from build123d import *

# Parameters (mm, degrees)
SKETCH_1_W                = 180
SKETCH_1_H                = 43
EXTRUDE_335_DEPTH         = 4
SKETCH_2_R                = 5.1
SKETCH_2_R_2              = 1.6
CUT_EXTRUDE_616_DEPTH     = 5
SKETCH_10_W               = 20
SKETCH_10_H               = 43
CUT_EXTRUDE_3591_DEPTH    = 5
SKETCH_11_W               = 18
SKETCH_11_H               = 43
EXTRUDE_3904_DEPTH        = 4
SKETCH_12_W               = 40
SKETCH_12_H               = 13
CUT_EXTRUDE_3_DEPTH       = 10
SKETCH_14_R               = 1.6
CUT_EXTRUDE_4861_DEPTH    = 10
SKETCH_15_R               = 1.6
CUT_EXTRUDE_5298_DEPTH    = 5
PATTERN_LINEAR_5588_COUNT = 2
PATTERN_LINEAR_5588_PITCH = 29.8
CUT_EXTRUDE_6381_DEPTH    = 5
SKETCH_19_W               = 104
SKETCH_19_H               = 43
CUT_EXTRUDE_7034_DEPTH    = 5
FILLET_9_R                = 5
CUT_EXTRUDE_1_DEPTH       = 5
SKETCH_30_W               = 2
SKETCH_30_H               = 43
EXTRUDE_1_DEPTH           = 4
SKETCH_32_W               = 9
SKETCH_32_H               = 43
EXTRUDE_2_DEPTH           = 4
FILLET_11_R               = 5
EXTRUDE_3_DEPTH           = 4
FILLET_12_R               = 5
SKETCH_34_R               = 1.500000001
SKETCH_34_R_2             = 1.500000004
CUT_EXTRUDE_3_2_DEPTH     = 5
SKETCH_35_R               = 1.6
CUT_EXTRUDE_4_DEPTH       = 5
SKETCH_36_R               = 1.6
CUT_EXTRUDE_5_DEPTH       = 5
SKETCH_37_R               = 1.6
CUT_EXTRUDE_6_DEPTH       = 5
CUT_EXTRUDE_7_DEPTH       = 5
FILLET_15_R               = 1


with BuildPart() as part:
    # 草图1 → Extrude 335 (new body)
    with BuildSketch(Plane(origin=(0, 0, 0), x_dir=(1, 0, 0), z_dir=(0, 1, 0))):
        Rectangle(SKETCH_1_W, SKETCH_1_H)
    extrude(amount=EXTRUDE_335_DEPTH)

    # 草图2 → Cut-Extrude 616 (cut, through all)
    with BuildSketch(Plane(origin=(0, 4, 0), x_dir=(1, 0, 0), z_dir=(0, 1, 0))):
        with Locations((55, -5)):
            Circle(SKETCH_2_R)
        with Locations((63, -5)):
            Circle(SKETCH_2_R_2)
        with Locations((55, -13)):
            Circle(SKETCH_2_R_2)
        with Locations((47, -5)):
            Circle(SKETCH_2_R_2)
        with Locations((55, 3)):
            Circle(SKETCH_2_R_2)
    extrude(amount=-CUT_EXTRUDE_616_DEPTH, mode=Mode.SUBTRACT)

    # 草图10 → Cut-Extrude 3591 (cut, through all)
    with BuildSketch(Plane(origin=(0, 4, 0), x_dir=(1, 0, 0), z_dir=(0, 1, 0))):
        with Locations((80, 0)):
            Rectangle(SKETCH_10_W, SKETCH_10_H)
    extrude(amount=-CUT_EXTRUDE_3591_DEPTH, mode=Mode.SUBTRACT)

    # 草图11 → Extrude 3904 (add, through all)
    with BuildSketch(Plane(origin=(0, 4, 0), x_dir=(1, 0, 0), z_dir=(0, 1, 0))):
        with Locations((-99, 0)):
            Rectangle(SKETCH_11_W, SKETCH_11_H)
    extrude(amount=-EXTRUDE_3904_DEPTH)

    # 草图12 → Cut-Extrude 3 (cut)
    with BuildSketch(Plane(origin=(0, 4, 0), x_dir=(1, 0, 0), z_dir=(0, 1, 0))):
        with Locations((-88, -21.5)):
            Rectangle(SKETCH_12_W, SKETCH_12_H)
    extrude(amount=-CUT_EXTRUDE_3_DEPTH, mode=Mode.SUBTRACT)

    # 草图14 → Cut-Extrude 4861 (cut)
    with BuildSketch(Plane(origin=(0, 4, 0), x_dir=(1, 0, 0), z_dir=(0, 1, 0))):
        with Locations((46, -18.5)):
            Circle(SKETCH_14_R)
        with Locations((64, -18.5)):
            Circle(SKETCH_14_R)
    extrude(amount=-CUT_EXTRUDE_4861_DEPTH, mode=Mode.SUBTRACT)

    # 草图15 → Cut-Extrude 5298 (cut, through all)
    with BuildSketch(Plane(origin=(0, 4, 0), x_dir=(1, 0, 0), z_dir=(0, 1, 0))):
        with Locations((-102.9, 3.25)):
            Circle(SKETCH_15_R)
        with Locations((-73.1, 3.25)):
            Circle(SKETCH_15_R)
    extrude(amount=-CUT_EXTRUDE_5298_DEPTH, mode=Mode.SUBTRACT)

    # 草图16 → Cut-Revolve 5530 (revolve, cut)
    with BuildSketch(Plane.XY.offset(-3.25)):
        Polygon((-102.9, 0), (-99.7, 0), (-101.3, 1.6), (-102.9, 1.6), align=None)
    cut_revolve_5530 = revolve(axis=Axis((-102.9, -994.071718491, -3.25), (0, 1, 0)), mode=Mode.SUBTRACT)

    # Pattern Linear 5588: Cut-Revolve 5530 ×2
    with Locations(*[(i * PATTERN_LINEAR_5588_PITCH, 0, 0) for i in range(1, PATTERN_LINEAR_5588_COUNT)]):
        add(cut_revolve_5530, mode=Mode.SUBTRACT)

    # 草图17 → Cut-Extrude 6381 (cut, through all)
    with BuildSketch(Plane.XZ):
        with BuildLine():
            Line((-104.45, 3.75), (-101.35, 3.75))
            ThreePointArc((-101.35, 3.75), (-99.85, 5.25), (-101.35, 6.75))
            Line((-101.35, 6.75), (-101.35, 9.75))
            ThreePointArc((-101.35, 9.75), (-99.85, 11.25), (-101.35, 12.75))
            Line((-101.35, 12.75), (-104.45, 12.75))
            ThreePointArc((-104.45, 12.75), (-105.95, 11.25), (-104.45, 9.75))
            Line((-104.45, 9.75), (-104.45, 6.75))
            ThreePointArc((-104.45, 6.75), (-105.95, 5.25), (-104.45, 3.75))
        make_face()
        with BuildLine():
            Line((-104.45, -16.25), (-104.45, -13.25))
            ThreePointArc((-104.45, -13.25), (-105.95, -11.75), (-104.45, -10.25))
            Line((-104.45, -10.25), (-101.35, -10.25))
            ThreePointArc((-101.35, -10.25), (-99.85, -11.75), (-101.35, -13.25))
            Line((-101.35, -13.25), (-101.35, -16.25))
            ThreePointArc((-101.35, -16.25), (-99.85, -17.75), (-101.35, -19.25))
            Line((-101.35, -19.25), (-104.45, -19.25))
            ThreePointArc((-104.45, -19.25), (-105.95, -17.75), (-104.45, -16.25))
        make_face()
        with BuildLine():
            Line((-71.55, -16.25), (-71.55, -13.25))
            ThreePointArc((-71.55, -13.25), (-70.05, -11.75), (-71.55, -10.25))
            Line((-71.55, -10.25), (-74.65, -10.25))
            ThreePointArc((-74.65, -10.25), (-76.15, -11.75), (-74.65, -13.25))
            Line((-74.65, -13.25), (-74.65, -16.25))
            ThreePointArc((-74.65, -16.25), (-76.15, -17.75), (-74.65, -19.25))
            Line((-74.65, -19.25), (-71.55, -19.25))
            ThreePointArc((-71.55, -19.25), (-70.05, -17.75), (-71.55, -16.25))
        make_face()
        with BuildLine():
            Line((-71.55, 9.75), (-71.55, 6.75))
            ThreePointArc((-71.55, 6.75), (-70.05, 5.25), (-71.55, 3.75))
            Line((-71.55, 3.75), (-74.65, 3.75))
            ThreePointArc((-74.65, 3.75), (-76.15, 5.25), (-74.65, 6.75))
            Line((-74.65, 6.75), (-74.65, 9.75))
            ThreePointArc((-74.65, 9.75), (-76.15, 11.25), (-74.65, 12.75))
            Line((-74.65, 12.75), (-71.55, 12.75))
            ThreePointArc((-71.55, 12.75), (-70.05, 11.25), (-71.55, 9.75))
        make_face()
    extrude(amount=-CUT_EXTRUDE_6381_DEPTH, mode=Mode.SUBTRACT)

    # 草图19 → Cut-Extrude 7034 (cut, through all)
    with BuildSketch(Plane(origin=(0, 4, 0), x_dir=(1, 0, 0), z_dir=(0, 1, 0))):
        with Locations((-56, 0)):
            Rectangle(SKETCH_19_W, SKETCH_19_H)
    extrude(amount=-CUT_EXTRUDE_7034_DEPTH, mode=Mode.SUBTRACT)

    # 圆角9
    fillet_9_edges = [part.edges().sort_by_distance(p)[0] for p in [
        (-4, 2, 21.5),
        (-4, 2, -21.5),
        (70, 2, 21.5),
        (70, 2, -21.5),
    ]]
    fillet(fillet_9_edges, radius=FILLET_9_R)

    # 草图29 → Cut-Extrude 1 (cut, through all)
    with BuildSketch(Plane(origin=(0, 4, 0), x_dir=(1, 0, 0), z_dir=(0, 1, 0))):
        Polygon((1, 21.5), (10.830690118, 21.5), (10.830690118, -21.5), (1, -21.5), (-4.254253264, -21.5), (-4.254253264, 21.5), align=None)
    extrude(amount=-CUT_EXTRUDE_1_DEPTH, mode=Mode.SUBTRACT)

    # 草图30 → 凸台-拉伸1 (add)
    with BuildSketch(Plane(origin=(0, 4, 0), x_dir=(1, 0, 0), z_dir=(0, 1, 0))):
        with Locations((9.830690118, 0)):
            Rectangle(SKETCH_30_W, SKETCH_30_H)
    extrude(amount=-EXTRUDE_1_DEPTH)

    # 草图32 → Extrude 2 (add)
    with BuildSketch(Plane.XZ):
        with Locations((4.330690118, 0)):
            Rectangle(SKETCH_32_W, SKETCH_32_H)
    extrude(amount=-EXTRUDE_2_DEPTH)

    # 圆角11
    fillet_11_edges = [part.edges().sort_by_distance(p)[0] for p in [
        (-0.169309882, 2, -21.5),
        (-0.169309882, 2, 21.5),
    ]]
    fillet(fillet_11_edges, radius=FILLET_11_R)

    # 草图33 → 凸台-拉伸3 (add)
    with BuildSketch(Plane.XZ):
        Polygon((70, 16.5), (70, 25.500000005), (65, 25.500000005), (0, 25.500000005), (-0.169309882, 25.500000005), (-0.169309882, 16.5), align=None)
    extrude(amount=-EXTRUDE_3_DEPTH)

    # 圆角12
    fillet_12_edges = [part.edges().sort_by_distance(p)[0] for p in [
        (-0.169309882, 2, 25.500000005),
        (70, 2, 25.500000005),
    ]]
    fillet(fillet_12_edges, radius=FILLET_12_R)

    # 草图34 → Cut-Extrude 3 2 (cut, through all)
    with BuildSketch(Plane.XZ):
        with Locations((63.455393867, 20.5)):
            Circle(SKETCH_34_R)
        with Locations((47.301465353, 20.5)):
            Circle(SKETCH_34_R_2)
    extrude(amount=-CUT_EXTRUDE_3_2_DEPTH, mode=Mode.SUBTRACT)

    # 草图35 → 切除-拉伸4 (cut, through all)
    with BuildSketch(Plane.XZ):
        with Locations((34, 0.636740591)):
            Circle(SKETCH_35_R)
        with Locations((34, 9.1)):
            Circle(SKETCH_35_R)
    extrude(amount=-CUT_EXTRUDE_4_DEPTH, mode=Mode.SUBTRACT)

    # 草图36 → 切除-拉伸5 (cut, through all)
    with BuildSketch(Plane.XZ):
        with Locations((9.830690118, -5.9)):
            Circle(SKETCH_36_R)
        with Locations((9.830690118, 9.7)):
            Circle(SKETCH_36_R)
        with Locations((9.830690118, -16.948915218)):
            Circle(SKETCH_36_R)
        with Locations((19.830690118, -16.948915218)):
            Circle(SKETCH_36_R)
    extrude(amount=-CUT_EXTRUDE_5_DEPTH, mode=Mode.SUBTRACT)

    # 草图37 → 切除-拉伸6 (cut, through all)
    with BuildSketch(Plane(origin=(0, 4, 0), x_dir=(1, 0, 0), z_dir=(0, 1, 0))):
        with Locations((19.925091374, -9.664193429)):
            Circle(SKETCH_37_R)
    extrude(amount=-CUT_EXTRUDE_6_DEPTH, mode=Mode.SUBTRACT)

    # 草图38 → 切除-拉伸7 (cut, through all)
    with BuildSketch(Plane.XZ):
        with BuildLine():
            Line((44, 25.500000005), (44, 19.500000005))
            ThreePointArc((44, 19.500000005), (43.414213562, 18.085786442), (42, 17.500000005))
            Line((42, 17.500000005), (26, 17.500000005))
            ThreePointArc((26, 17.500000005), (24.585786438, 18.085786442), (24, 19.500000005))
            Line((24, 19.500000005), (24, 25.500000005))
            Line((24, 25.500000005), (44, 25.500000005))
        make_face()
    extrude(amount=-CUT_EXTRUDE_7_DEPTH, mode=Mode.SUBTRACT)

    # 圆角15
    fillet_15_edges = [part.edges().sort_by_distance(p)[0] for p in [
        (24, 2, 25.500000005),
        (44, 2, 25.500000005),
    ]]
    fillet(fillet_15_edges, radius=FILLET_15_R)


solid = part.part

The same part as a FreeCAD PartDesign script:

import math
import FreeCAD as App
import Part
import Sketcher
from FreeCAD import Vector
Q = App.Units.Quantity


def edges_at(feature, points):
    """Names of the edges that pass closest to the given points."""
    edges = feature.Shape.Edges
    near = lambda p: min(range(len(edges)), key=lambda i: edges[i].distToShape(Part.Vertex(*p))[0])
    return sorted({f"Edge{near(p) + 1}" for p in points})


def add_polygon(sketch, points):
    """Adds a closed chain of lines whose ends are joined by coincident constraints."""
    first, n = sketch.GeometryCount, len(points)
    for a, b in zip(points, points[1:] + points[:1]):
        sketch.addGeometry(Part.LineSegment(App.Vector(*a, 0), App.Vector(*b, 0)), False)
    for i in range(n):
        sketch.addConstraint(Sketcher.Constraint("Coincident", first + i, 2, first + (i + 1) % n, 1))

doc = App.newDocument("Part")
body = doc.addObject("PartDesign::Body", "Body")

# Sketch on XZ plane
sketch1 = doc.addObject("Sketcher::SketchObject", "Sketch")
body.addObject(sketch1)
sketch1.AttachmentSupport = (doc.XZ_Plane, [""])
sketch1.MapMode = "FlatFace"
add_polygon(sketch1, [(-90, -22), (-90, 22), (90, 22), (90, -22)])  # lines 0-3
sketch1.addConstraint([
    Sketcher.Constraint("Vertical", 0),
    Sketcher.Constraint("Horizontal", 1),
    Sketcher.Constraint("Vertical", 2),
    Sketcher.Constraint("Horizontal", 3),
    Sketcher.Constraint("Symmetric", 0, 2, 2, 2, -1, 1),
    Sketcher.Constraint("DistanceX", 1, 1, 1, 2, Q("180 mm")),
    Sketcher.Constraint("DistanceY", 0, 1, 0, 2, Q("43 mm")),
])
pad1 = doc.addObject("PartDesign::Pad", "Pad")
body.addObject(pad1)
pad1.Profile = sketch1
pad1.Length = 4
pad1.Reversed = True

# Sketch on XZ plane
sketch2 = doc.addObject("Sketcher::SketchObject", "Sketch001")
body.addObject(sketch2)
sketch2.AttachmentSupport = (doc.XZ_Plane, [""])
sketch2.MapMode = "FlatFace"
sketch2.AttachmentOffset = App.Placement(Vector(0, 0, -4), App.Rotation())
sketch2.addGeometry([
    Part.Circle(Vector(55, 5, 0), Vector(0, 0, 1), 5.1),  # 0
    Part.Circle(Vector(63, 5, 0), Vector(0, 0, 1), 1.6),  # 1
    Part.Circle(Vector(55, 13, 0), Vector(0, 0, 1), 1.6),  # 2
    Part.Circle(Vector(47, 5, 0), Vector(0, 0, 1), 1.6),  # 3
    Part.Circle(Vector(55, -3, 0), Vector(0, 0, 1), 1.6),  # 4
], False)
sketch2.addConstraint([
    Sketcher.Constraint("Equal", 1, 2),
    Sketcher.Constraint("Equal", 2, 3),
    Sketcher.Constraint("Equal", 3, 4),
    Sketcher.Constraint("Horizontal", 0, 3, 1, 3),
    Sketcher.Constraint("Horizontal", 1, 3, 3, 3),
    Sketcher.Constraint("Vertical", 0, 3, 2, 3),
    Sketcher.Constraint("Vertical", 2, 3, 4, 3),
    Sketcher.Constraint("Diameter", 0, Q("10.2 mm")),
    Sketcher.Constraint("Diameter", 1, Q("3.2 mm")),
    Sketcher.Constraint("DistanceX", -1, 1, 0, 3, Q("55 mm")),
    Sketcher.Constraint("DistanceY", -1, 1, 0, 3, Q("5 mm")),
    Sketcher.Constraint("DistanceX", -1, 1, 1, 3, Q("63 mm")),
    Sketcher.Constraint("DistanceY", -1, 1, 2, 3, Q("13 mm")),
    Sketcher.Constraint("DistanceX", -1, 1, 3, 3, Q("47 mm")),
    Sketcher.Constraint("DistanceY", 4, 3, -1, 1, Q("3 mm")),
])
pocket1 = doc.addObject("PartDesign::Pocket", "Pocket")
body.addObject(pocket1)
pocket1.Profile = sketch2
pocket1.Type = "ThroughAll"
pocket1.Reversed = True

# Sketch on XZ plane
sketch3 = doc.addObject("Sketcher::SketchObject", "Sketch002")
body.addObject(sketch3)
sketch3.AttachmentSupport = (doc.XZ_Plane, [""])
sketch3.MapMode = "FlatFace"
sketch3.AttachmentOffset = App.Placement(Vector(0, 0, -4), App.Rotation())
add_polygon(sketch3, [(70, -22), (70, 22), (90, 22), (90, -22)])  # lines 0-3
sketch3.addConstraint([
    Sketcher.Constraint("Vertical", 0),
    Sketcher.Constraint("Horizontal", 1),
    Sketcher.Constraint("Vertical", 2),
    Sketcher.Constraint("Horizontal", 3),
    Sketcher.Constraint("DistanceX", 1, 1, 1, 2, Q("20 mm")),
    Sketcher.Constraint("DistanceY", 0, 1, 0, 2, Q("43 mm")),
    Sketcher.Constraint("DistanceX", -1, 1, 0, 2, Q("70 mm")),
    Sketcher.Constraint("DistanceY", -1, 1, 0, 2, Q("21.5 mm")),
])
pocket2 = doc.addObject("PartDesign::Pocket", "Pocket001")
body.addObject(pocket2)
pocket2.Profile = sketch3
pocket2.Type = "ThroughAll"
pocket2.Reversed = True

# Sketch on XZ plane
sketch4 = doc.addObject("Sketcher::SketchObject", "Sketch003")
body.addObject(sketch4)
sketch4.AttachmentSupport = (doc.XZ_Plane, [""])
sketch4.MapMode = "FlatFace"
sketch4.AttachmentOffset = App.Placement(Vector(0, 0, -4), App.Rotation())
add_polygon(sketch4, [(-108, -22), (-108, 22), (-90, 22), (-90, -22)])  # lines 0-3
sketch4.addConstraint([
    Sketcher.Constraint("Vertical", 0),
    Sketcher.Constraint("Horizontal", 1),
    Sketcher.Constraint("Vertical", 2),
    Sketcher.Constraint("Horizontal", 3),
    Sketcher.Constraint("DistanceX", 1, 1, 1, 2, Q("18 mm")),
    Sketcher.Constraint("DistanceY", 0, 1, 0, 2, Q("43 mm")),
    Sketcher.Constraint("DistanceX", 0, 2, -1, 1, Q("108 mm")),
    Sketcher.Constraint("DistanceY", -1, 1, 0, 2, Q("21.5 mm")),
])
pad2 = doc.addObject("PartDesign::Pad", "Pad001")
body.addObject(pad2)
pad2.Profile = sketch4
pad2.Length = 4

# Sketch on XZ plane
sketch5 = doc.addObject("Sketcher::SketchObject", "Sketch004")
body.addObject(sketch5)
sketch5.AttachmentSupport = (doc.XZ_Plane, [""])
sketch5.MapMode = "FlatFace"
sketch5.AttachmentOffset = App.Placement(Vector(0, 0, -4), App.Rotation())
add_polygon(sketch5, [(-108, 15), (-108, 28), (-68, 28), (-68, 15)])  # lines 0-3
sketch5.addConstraint([
    Sketcher.Constraint("Vertical", 0),
    Sketcher.Constraint("Horizontal", 1),
    Sketcher.Constraint("Vertical", 2),
    Sketcher.Constraint("Horizontal", 3),
    Sketcher.Constraint("DistanceX", 1, 1, 1, 2, Q("40 mm")),
    Sketcher.Constraint("DistanceY", 0, 1, 0, 2, Q("13 mm")),
    Sketcher.Constraint("DistanceX", 0, 2, -1, 1, Q("108 mm")),
    Sketcher.Constraint("DistanceY", -1, 1, 0, 2, Q("28 mm")),
])
pocket3 = doc.addObject("PartDesign::Pocket", "Pocket002")
body.addObject(pocket3)
pocket3.Profile = sketch5
pocket3.Length = 10
pocket3.Reversed = True

# Sketch on XZ plane
sketch6 = doc.addObject("Sketcher::SketchObject", "Sketch005")
body.addObject(sketch6)
sketch6.AttachmentSupport = (doc.XZ_Plane, [""])
sketch6.MapMode = "FlatFace"
sketch6.AttachmentOffset = App.Placement(Vector(0, 0, -4), App.Rotation())
sketch6.addGeometry([
    Part.Circle(Vector(46, 18.5, 0), Vector(0, 0, 1), 1.6),
    Part.Circle(Vector(64, 18.5, 0), Vector(0, 0, 1), 1.6),
], False)
sketch6.addConstraint([
    Sketcher.Constraint("Equal", 0, 1),
    Sketcher.Constraint("Horizontal", 0, 3, 1, 3),
    Sketcher.Constraint("Diameter", 0, Q("3.2 mm")),
    Sketcher.Constraint("DistanceX", -1, 1, 0, 3, Q("46 mm")),
    Sketcher.Constraint("DistanceX", -1, 1, 1, 3, Q("64 mm")),
    Sketcher.Constraint("DistanceY", -1, 1, 0, 3, Q("18.5 mm")),
])
pocket4 = doc.addObject("PartDesign::Pocket", "Pocket003")
body.addObject(pocket4)
pocket4.Profile = sketch6
pocket4.Length = 10
pocket4.Reversed = True

# Sketch on XZ plane
sketch7 = doc.addObject("Sketcher::SketchObject", "Sketch006")
body.addObject(sketch7)
sketch7.AttachmentSupport = (doc.XZ_Plane, [""])
sketch7.MapMode = "FlatFace"
sketch7.AttachmentOffset = App.Placement(Vector(0, 0, -4), App.Rotation())
sketch7.addGeometry([
    Part.Circle(Vector(-102.9, -3.2, 0), Vector(0, 0, 1), 1.6),
    Part.Circle(Vector(-73.1, -3.2, 0), Vector(0, 0, 1), 1.6),
], False)
sketch7.addConstraint([
    Sketcher.Constraint("Equal", 0, 1),
    Sketcher.Constraint("Horizontal", 0, 3, 1, 3),
    Sketcher.Constraint("Diameter", 0, Q("3.2 mm")),
    Sketcher.Constraint("DistanceX", 0, 3, -1, 1, Q("102.9 mm")),
    Sketcher.Constraint("DistanceX", 1, 3, -1, 1, Q("73.1 mm")),
    Sketcher.Constraint("DistanceY", 0, 3, -1, 1, Q("3.25 mm")),
])
pocket5 = doc.addObject("PartDesign::Pocket", "Pocket004")
body.addObject(pocket5)
pocket5.Profile = sketch7
pocket5.Type = "ThroughAll"
pocket5.Reversed = True

# Sketch on XY plane
sketch8 = doc.addObject("Sketcher::SketchObject", "Sketch007")
body.addObject(sketch8)
sketch8.AttachmentSupport = (doc.XY_Plane, [""])
sketch8.MapMode = "FlatFace"
sketch8.AttachmentOffset = App.Placement(Vector(0, 0, -3.25), App.Rotation())
add_polygon(sketch8, [(-102.9, 0), (-99.7, 0), (-101.3, 1.6), (-102.9, 1.6)])  # lines 0-3
sketch8.addGeometry(Part.LineSegment(Vector(-102.9, 0, 0), Vector(-102.9, 1.6, 0)), True)  # axis
sketch8.addConstraint([
    Sketcher.Constraint("Horizontal", 0),
    Sketcher.Constraint("Horizontal", 2),
    Sketcher.Constraint("Vertical", 3),
    Sketcher.Constraint("Vertical", 4),
    Sketcher.Constraint("Coincident", 4, 1, 3, 2),
    Sketcher.Constraint("PointOnObject", 0, 2, -1),
    Sketcher.Constraint("Horizontal", 1, 2, 4, 2),
    Sketcher.Constraint("Equal", 2, 3),
    Sketcher.Constraint("Angle", 1, Q("135 deg")),
    Sketcher.Constraint("DistanceX", 0, 1, 0, 2, Q("3.2 mm")),
    Sketcher.Constraint("DistanceX", 0, 2, -1, 1, Q("99.7 mm")),
])
groove = doc.addObject("PartDesign::Groove", "Groove")
body.addObject(groove)
groove.Profile = sketch8
groove.ReferenceAxis = (sketch8, ["Axis0"])
groove.Angle = 360
doc.recompute()

linearpattern = doc.addObject("PartDesign::LinearPattern", "LinearPattern")
body.addObject(linearpattern)
linearpattern.Originals = [groove]
linearpattern.Direction = (doc.X_Axis, [""])
linearpattern.Mode = "offset"
linearpattern.Offset = 29.8
linearpattern.Occurrences = 2
body.Tip = linearpattern

# Sketch on XZ plane
sketch9 = doc.addObject("Sketcher::SketchObject", "Sketch008")
body.addObject(sketch9)
sketch9.AttachmentSupport = (doc.XZ_Plane, [""])
sketch9.MapMode = "FlatFace"
sketch9.addGeometry([
    Part.LineSegment(Vector(-104.5, 3.8, 0), Vector(-101.3, 3.8, 0)),  # 0
    Part.ArcOfCircle(Part.Circle(Vector(-101.3, 5.2, 0), Vector(0, 0, 1), 1.5), math.radians(-90), math.radians(90)),  # 1
    Part.LineSegment(Vector(-101.3, 6.8, 0), Vector(-101.3, 9.8, 0)),  # 2
    Part.ArcOfCircle(Part.Circle(Vector(-101.3, 11.2, 0), Vector(0, 0, 1), 1.5), math.radians(-90), math.radians(90)),  # 3
    Part.LineSegment(Vector(-101.3, 12.8, 0), Vector(-104.5, 12.8, 0)),  # 4
    Part.ArcOfCircle(Part.Circle(Vector(-104.5, 11.2, 0), Vector(0, 0, 1), 1.5), math.radians(90), math.radians(270)),  # 5
    Part.LineSegment(Vector(-104.5, 9.8, 0), Vector(-104.5, 6.8, 0)),  # 6
    Part.ArcOfCircle(Part.Circle(Vector(-104.5, 5.2, 0), Vector(0, 0, 1), 1.5), math.radians(90), math.radians(270)),  # 7
    Part.LineSegment(Vector(-104.5, -13.2, 0), Vector(-104.5, -16.2, 0)),  # 8
    Part.ArcOfCircle(Part.Circle(Vector(-104.5, -17.8, 0), Vector(0, 0, 1), 1.5), math.radians(90), math.radians(270)),  # 9
    Part.LineSegment(Vector(-104.5, -19.2, 0), Vector(-101.3, -19.2, 0)),  # 10
    Part.ArcOfCircle(Part.Circle(Vector(-101.3, -17.8, 0), Vector(0, 0, 1), 1.5), math.radians(-90), math.radians(90)),  # 11
    Part.LineSegment(Vector(-101.3, -16.2, 0), Vector(-101.3, -13.2, 0)),  # 12
    Part.ArcOfCircle(Part.Circle(Vector(-101.3, -11.8, 0), Vector(0, 0, 1), 1.5), math.radians(-90), math.radians(90)),  # 13
    Part.LineSegment(Vector(-101.3, -10.2, 0), Vector(-104.5, -10.2, 0)),  # 14
    Part.ArcOfCircle(Part.Circle(Vector(-104.5, -11.8, 0), Vector(0, 0, 1), 1.5), math.radians(90), math.radians(270)),  # 15
    Part.LineSegment(Vector(-71.5, -16.2, 0), Vector(-71.5, -13.2, 0)),  # 16
    Part.ArcOfCircle(Part.Circle(Vector(-71.5, -11.8, 0), Vector(0, 0, 1), 1.5), math.radians(-90), math.radians(90)),  # 17
    Part.LineSegment(Vector(-71.5, -10.2, 0), Vector(-74.7, -10.2, 0)),  # 18
    Part.ArcOfCircle(Part.Circle(Vector(-74.7, -11.8, 0), Vector(0, 0, 1), 1.5), math.radians(90), math.radians(270)),  # 19
    Part.LineSegment(Vector(-74.7, -13.2, 0), Vector(-74.7, -16.2, 0)),  # 20
    Part.ArcOfCircle(Part.Circle(Vector(-74.7, -17.8, 0), Vector(0, 0, 1), 1.5), math.radians(90), math.radians(270)),  # 21
    Part.LineSegment(Vector(-74.7, -19.2, 0), Vector(-71.5, -19.2, 0)),  # 22
    Part.ArcOfCircle(Part.Circle(Vector(-71.5, -17.8, 0), Vector(0, 0, 1), 1.5), math.radians(-90), math.radians(90)),  # 23
    Part.LineSegment(Vector(-71.5, 6.8, 0), Vector(-71.5, 9.8, 0)),  # 24
    Part.ArcOfCircle(Part.Circle(Vector(-71.5, 11.2, 0), Vector(0, 0, 1), 1.5), math.radians(-90), math.radians(90)),  # 25
    Part.LineSegment(Vector(-71.5, 12.8, 0), Vector(-74.7, 12.8, 0)),  # 26
    Part.ArcOfCircle(Part.Circle(Vector(-74.7, 11.2, 0), Vector(0, 0, 1), 1.5), math.radians(90), math.radians(270)),  # 27
    Part.LineSegment(Vector(-74.7, 9.8, 0), Vector(-74.7, 6.8, 0)),  # 28
    Part.ArcOfCircle(Part.Circle(Vector(-74.7, 5.2, 0), Vector(0, 0, 1), 1.5), math.radians(90), math.radians(270)),  # 29
    Part.LineSegment(Vector(-74.7, 3.8, 0), Vector(-71.5, 3.8, 0)),  # 30
    Part.ArcOfCircle(Part.Circle(Vector(-71.5, 5.2, 0), Vector(0, 0, 1), 1.5), math.radians(-90), math.radians(90)),  # 31
], False)
sketch9.addConstraint([
    Sketcher.Constraint("Tangent", 0, 2, 1, 1),
    Sketcher.Constraint("Coincident", 1, 2, 2, 1),
    Sketcher.Constraint("Coincident", 2, 2, 3, 1),
    Sketcher.Constraint("Tangent", 3, 2, 4, 1),
    Sketcher.Constraint("Tangent", 4, 2, 5, 1),
    Sketcher.Constraint("Coincident", 5, 2, 6, 1),
    Sketcher.Constraint("Coincident", 6, 2, 7, 1),
    Sketcher.Constraint("Tangent", 7, 2, 0, 1),
    Sketcher.Constraint("Coincident", 8, 2, 9, 1),
    Sketcher.Constraint("Tangent", 9, 2, 10, 1),
    Sketcher.Constraint("Tangent", 10, 2, 11, 1),
    Sketcher.Constraint("Coincident", 11, 2, 12, 1),
    Sketcher.Constraint("Coincident", 12, 2, 13, 1),
    Sketcher.Constraint("Tangent", 13, 2, 14, 1),
    Sketcher.Constraint("Tangent", 14, 2, 15, 1),
    Sketcher.Constraint("Coincident", 15, 2, 8, 1),
    Sketcher.Constraint("Coincident", 16, 2, 17, 1),
    Sketcher.Constraint("Tangent", 17, 2, 18, 1),
    Sketcher.Constraint("Tangent", 18, 2, 19, 1),
    Sketcher.Constraint("Coincident", 19, 2, 20, 1),
    Sketcher.Constraint("Coincident", 20, 2, 21, 1),
    Sketcher.Constraint("Tangent", 21, 2, 22, 1),
    Sketcher.Constraint("Tangent", 22, 2, 23, 1),
    Sketcher.Constraint("Coincident", 23, 2, 16, 1),
    Sketcher.Constraint("Coincident", 24, 2, 25, 1),
    Sketcher.Constraint("Tangent", 25, 2, 26, 1),
    Sketcher.Constraint("Tangent", 26, 2, 27, 1),
    Sketcher.Constraint("Coincident", 27, 2, 28, 1),
    Sketcher.Constraint("Coincident", 28, 2, 29, 1),
    Sketcher.Constraint("Tangent", 29, 2, 30, 1),
    Sketcher.Constraint("Tangent", 30, 2, 31, 1),
    Sketcher.Constraint("Coincident", 31, 2, 24, 1),
    Sketcher.Constraint("Horizontal", 0),
    Sketcher.Constraint("Vertical", 2),
    Sketcher.Constraint("Horizontal", 4),
    Sketcher.Constraint("Vertical", 6),
    Sketcher.Constraint("Vertical", 8),
    Sketcher.Constraint("Horizontal", 10),
    Sketcher.Constraint("Vertical", 12),
    Sketcher.Constraint("Horizontal", 14),
    Sketcher.Constraint("Vertical", 16),
    Sketcher.Constraint("Horizontal", 18),
    Sketcher.Constraint("Vertical", 20),
    Sketcher.Constraint("Horizontal", 22),
    Sketcher.Constraint("Vertical", 24),
    Sketcher.Constraint("Horizontal", 26),
    Sketcher.Constraint("Vertical", 28),
    Sketcher.Constraint("Horizontal", 30),
    Sketcher.Constraint("Equal", 1, 3),
    Sketcher.Constraint("Equal", 3, 5),
    Sketcher.Constraint("Equal", 5, 7),
    Sketcher.Constraint("Equal", 7, 9),
    Sketcher.Constraint("Equal", 9, 11),
    Sketcher.Constraint("Equal", 11, 13),
    Sketcher.Constraint("Equal", 13, 15),
    Sketcher.Constraint("Equal", 15, 17),
    Sketcher.Constraint("Equal", 17, 19),
    Sketcher.Constraint("Equal", 19, 21),
    Sketcher.Constraint("Equal", 21, 23),
    Sketcher.Constraint("Equal", 23, 25),
    Sketcher.Constraint("Equal", 25, 27),
    Sketcher.Constraint("Equal", 27, 29),
    Sketcher.Constraint("Equal", 29, 31),
    Sketcher.Constraint("Horizontal", 15, 3, 17, 3),
    Sketcher.Constraint("Horizontal", 11, 3, 21, 3),
    Sketcher.Constraint("Horizontal", 5, 3, 25, 3),
    Sketcher.Constraint("Horizontal", 7, 3, 29, 3),
    Sketcher.Constraint("Vertical", 1, 3, 3, 3),
    Sketcher.Constraint("Vertical", 5, 3, 7, 3),
    Sketcher.Constraint("Vertical", 7, 3, 9, 3),
    Sketcher.Constraint("Vertical", 3, 3, 11, 3),
    Sketcher.Constraint("Vertical", 11, 3, 13, 3),
    Sketcher.Constraint("Vertical", 9, 3, 15, 3),
    Sketcher.Constraint("Vertical", 19, 3, 21, 3),
    Sketcher.Constraint("Vertical", 17, 3, 23, 3),
    Sketcher.Constraint("Vertical", 23, 3, 25, 3),
    Sketcher.Constraint("Vertical", 21, 3, 27, 3),
    Sketcher.Constraint("Vertical", 27, 3, 29, 3),
    Sketcher.Constraint("Vertical", 25, 3, 31, 3),
    Sketcher.Constraint("Vertical", 0, 2, 1, 2),
    Sketcher.Constraint("Vertical", 4, 2, 5, 2),
    Sketcher.Constraint("Vertical", 7, 2, 8, 2),
    Sketcher.Constraint("Vertical", 10, 2, 11, 2),
    Sketcher.Constraint("Vertical", 31, 3, 16, 2),
    Sketcher.Constraint("Vertical", 18, 2, 19, 2),
    Sketcher.Constraint("Vertical", 23, 2, 24, 2),
    Sketcher.Constraint("Vertical", 26, 2, 27, 2),
    Sketcher.Constraint("Equal", 14, 18),
    Sketcher.Constraint("Equal", 6, 8),
    Sketcher.Constraint("Radius", 1, Q("1.5 mm")),
    Sketcher.Constraint("DistanceY", 2, 1, 2, 2, Q("3 mm")),
    Sketcher.Constraint("DistanceX", 0, 1, 0, 2, Q("3.1 mm")),
    Sketcher.Constraint("DistanceY", 9, 3, 7, 3, Q("23 mm")),
    Sketcher.Constraint("DistanceX", 13, 3, 17, 3, Q("29.8 mm")),
    Sketcher.Constraint("DistanceX", 1, 3, -1, 1, Q("101.35 mm")),
    Sketcher.Constraint("DistanceY", -1, 1, 1, 3, Q("5.25 mm")),
])
pocket6 = doc.addObject("PartDesign::Pocket", "Pocket005")
body.addObject(pocket6)
pocket6.Profile = sketch9
pocket6.Type = "ThroughAll"

# Sketch on XZ plane
sketch10 = doc.addObject("Sketcher::SketchObject", "Sketch009")
body.addObject(sketch10)
sketch10.AttachmentSupport = (doc.XZ_Plane, [""])
sketch10.MapMode = "FlatFace"
sketch10.AttachmentOffset = App.Placement(Vector(0, 0, -4), App.Rotation())
add_polygon(sketch10, [(-108, -22), (-108, 22), (-4, 22), (-4, -22)])  # lines 0-3
sketch10.addConstraint([
    Sketcher.Constraint("Vertical", 0),
    Sketcher.Constraint("Horizontal", 1),
    Sketcher.Constraint("Vertical", 2),
    Sketcher.Constraint("Horizontal", 3),
    Sketcher.Constraint("DistanceX", 1, 1, 1, 2, Q("104 mm")),
    Sketcher.Constraint("DistanceY", 0, 1, 0, 2, Q("43 mm")),
    Sketcher.Constraint("DistanceX", 0, 2, -1, 1, Q("108 mm")),
    Sketcher.Constraint("DistanceY", -1, 1, 0, 2, Q("21.5 mm")),
])
pocket7 = doc.addObject("PartDesign::Pocket", "Pocket006")
body.addObject(pocket7)
pocket7.Profile = sketch10
pocket7.Type = "ThroughAll"
pocket7.Reversed = True
doc.recompute()

fillet = doc.addObject("PartDesign::Fillet", "Fillet")
body.addObject(fillet)
fillet.Base = (pocket7, edges_at(pocket7, [
    (-4, 2, 21.5),
    (-4, 2, -21.5),
    (70, 2, 21.5),
    (70, 2, -21.5),
]))
fillet.Radius = 5

# Sketch on XZ plane
sketch11 = doc.addObject("Sketcher::SketchObject", "Sketch010")
body.addObject(sketch11)
sketch11.AttachmentSupport = (doc.XZ_Plane, [""])
sketch11.MapMode = "FlatFace"
sketch11.AttachmentOffset = App.Placement(Vector(0, 0, -4), App.Rotation())
add_polygon(sketch11, [(11, -22), (-4, -22), (-4, 22), (11, 22)])  # lines 0-3
sketch11.addConstraint([
    Sketcher.Constraint("Horizontal", 0),
    Sketcher.Constraint("Vertical", 1),
    Sketcher.Constraint("Horizontal", 2),
    Sketcher.Constraint("Vertical", 3),
    Sketcher.Constraint("DistanceY", 1, 1, 1, 2, Q("43 mm")),
    Sketcher.Constraint("DistanceY", 0, 2, -1, 1, Q("21.5 mm")),
    Sketcher.Constraint("DistanceX", 0, 2, 0, 1, Q("15.084943 mm")),
    Sketcher.Constraint("DistanceX", -1, 1, 2, 2, Q("10.83069 mm")),
])
pocket8 = doc.addObject("PartDesign::Pocket", "Pocket007")
body.addObject(pocket8)
pocket8.Profile = sketch11
pocket8.Type = "ThroughAll"
pocket8.Reversed = True

# Sketch on XZ plane
sketch12 = doc.addObject("Sketcher::SketchObject", "Sketch011")
body.addObject(sketch12)
sketch12.AttachmentSupport = (doc.XZ_Plane, [""])
sketch12.MapMode = "FlatFace"
sketch12.AttachmentOffset = App.Placement(Vector(0, 0, -4), App.Rotation())
add_polygon(sketch12, [(8.8, -21.5), (8.8, 21.5), (10.8, 21.5), (10.8, -21.5)])  # lines 0-3
sketch12.addConstraint([
    Sketcher.Constraint("Vertical", 0),
    Sketcher.Constraint("Horizontal", 1),
    Sketcher.Constraint("Vertical", 2),
    Sketcher.Constraint("Horizontal", 3),
    Sketcher.Constraint("DistanceX", 1, 1, 1, 2, Q("2 mm")),
    Sketcher.Constraint("DistanceY", 0, 1, 0, 2, Q("43 mm")),
    Sketcher.Constraint("DistanceY", -1, 1, 0, 2, Q("21.5 mm")),
    Sketcher.Constraint("DistanceX", -1, 1, 0, 2, Q("8.83069 mm")),
])
pad3 = doc.addObject("PartDesign::Pad", "Pad002")
body.addObject(pad3)
pad3.Profile = sketch12
pad3.Length = 4

# Sketch on XZ plane
sketch13 = doc.addObject("Sketcher::SketchObject", "Sketch012")
body.addObject(sketch13)
sketch13.AttachmentSupport = (doc.XZ_Plane, [""])
sketch13.MapMode = "FlatFace"
add_polygon(sketch13, [(0, 22), (0, -22), (9, -22), (9, 22)])  # lines 0-3
sketch13.addConstraint([
    Sketcher.Constraint("Vertical", 0),
    Sketcher.Constraint("Horizontal", 1),
    Sketcher.Constraint("Vertical", 2),
    Sketcher.Constraint("Horizontal", 3),
    Sketcher.Constraint("DistanceX", 1, 1, 1, 2, Q("9 mm")),
    Sketcher.Constraint("DistanceY", 0, 2, 0, 1, Q("43 mm")),
    Sketcher.Constraint("DistanceY", 0, 2, -1, 1, Q("21.5 mm")),
    Sketcher.Constraint("DistanceX", 0, 2, -1, 1, Q("0.16931 mm")),
])
pad4 = doc.addObject("PartDesign::Pad", "Pad003")
body.addObject(pad4)
pad4.Profile = sketch13
pad4.Length = 4
pad4.Reversed = True
doc.recompute()

fillet2 = doc.addObject("PartDesign::Fillet", "Fillet001")
body.addObject(fillet2)
fillet2.Base = (pad4, edges_at(pad4, [(-0.169, 2, -21.5), (-0.169, 2, 21.5)]))
fillet2.Radius = 5

# Sketch on XZ plane
sketch14 = doc.addObject("Sketcher::SketchObject", "Sketch013")
body.addObject(sketch14)
sketch14.AttachmentSupport = (doc.XZ_Plane, [""])
sketch14.MapMode = "FlatFace"
add_polygon(sketch14, [(70, 16), (70, 26), (0, 26), (0, 16)])  # lines 0-3
sketch14.addConstraint([
    Sketcher.Constraint("Vertical", 0),
    Sketcher.Constraint("Horizontal", 1),
    Sketcher.Constraint("Vertical", 2),
    Sketcher.Constraint("Horizontal", 3),
    Sketcher.Constraint("DistanceY", 0, 1, 0, 2, Q("9 mm")),
    Sketcher.Constraint("DistanceX", -1, 1, 0, 2, Q("70 mm")),
    Sketcher.Constraint("DistanceY", -1, 1, 0, 2, Q("25.5 mm")),
    Sketcher.Constraint("DistanceX", 1, 2, 1, 1, Q("70.16931 mm")),
])
pad5 = doc.addObject("PartDesign::Pad", "Pad004")
body.addObject(pad5)
pad5.Profile = sketch14
pad5.Length = 4
pad5.Reversed = True
doc.recompute()

fillet3 = doc.addObject("PartDesign::Fillet", "Fillet002")
body.addObject(fillet3)
fillet3.Base = (pad5, edges_at(pad5, [(-0.169, 2, 25.5), (70, 2, 25.5)]))
fillet3.Radius = 5

# Sketch on XZ plane
sketch15 = doc.addObject("Sketcher::SketchObject", "Sketch014")
body.addObject(sketch15)
sketch15.AttachmentSupport = (doc.XZ_Plane, [""])
sketch15.MapMode = "FlatFace"
sketch15.addGeometry([
    Part.Circle(Vector(63.5, 20.5, 0), Vector(0, 0, 1), 1.5),
    Part.Circle(Vector(47.3, 20.5, 0), Vector(0, 0, 1), 1.5),
], False)
sketch15.addConstraint([
    Sketcher.Constraint("Equal", 0, 1),
    Sketcher.Constraint("Horizontal", 0, 3, 1, 3),
    Sketcher.Constraint("Diameter", 0, Q("3 mm")),
    Sketcher.Constraint("DistanceY", -1, 1, 0, 3, Q("20.5 mm")),
    Sketcher.Constraint("DistanceX", 1, 3, 0, 3, Q("16.153929 mm")),
    Sketcher.Constraint("DistanceX", -1, 1, 0, 3, Q("63.455394 mm")),
])
pocket9 = doc.addObject("PartDesign::Pocket", "Pocket008")
body.addObject(pocket9)
pocket9.Profile = sketch15
pocket9.Type = "ThroughAll"

# Sketch on XZ plane
sketch16 = doc.addObject("Sketcher::SketchObject", "Sketch015")
body.addObject(sketch16)
sketch16.AttachmentSupport = (doc.XZ_Plane, [""])
sketch16.MapMode = "FlatFace"
sketch16.addGeometry([
    Part.Circle(Vector(34, 0.6, 0), Vector(0, 0, 1), 1.6),
    Part.Circle(Vector(34, 9.1, 0), Vector(0, 0, 1), 1.6),
], False)
sketch16.addConstraint([
    Sketcher.Constraint("Equal", 0, 1),
    Sketcher.Constraint("Vertical", 0, 3, 1, 3),
    Sketcher.Constraint("Diameter", 0, Q("3.2 mm")),
    Sketcher.Constraint("DistanceX", -1, 1, 0, 3, Q("34 mm")),
    Sketcher.Constraint("DistanceY", -1, 1, 1, 3, Q("9.1 mm")),
    Sketcher.Constraint("DistanceY", -1, 1, 0, 3, Q("0.636741 mm")),
])
pocket10 = doc.addObject("PartDesign::Pocket", "Pocket009")
body.addObject(pocket10)
pocket10.Profile = sketch16
pocket10.Type = "ThroughAll"

# Sketch on XZ plane
sketch17 = doc.addObject("Sketcher::SketchObject", "Sketch016")
body.addObject(sketch17)
sketch17.AttachmentSupport = (doc.XZ_Plane, [""])
sketch17.MapMode = "FlatFace"
sketch17.addGeometry([
    Part.Circle(Vector(9.8, -5.9, 0), Vector(0, 0, 1), 1.6),
    Part.Circle(Vector(9.8, 9.7, 0), Vector(0, 0, 1), 1.6),
    Part.Circle(Vector(9.8, -16.9, 0), Vector(0, 0, 1), 1.6),
    Part.Circle(Vector(19.8, -16.9, 0), Vector(0, 0, 1), 1.6),
], False)
sketch17.addConstraint([
    Sketcher.Constraint("Equal", 0, 1),
    Sketcher.Constraint("Equal", 1, 2),
    Sketcher.Constraint("Equal", 2, 3),
    Sketcher.Constraint("Horizontal", 2, 3, 3, 3),
    Sketcher.Constraint("Vertical", 0, 3, 1, 3),
    Sketcher.Constraint("Vertical", 1, 3, 2, 3),
    Sketcher.Constraint("Diameter", 0, Q("3.2 mm")),
    Sketcher.Constraint("DistanceX", 2, 3, 3, 3, Q("10 mm")),
    Sketcher.Constraint("DistanceY", 0, 3, -1, 1, Q("5.9 mm")),
    Sketcher.Constraint("DistanceY", -1, 1, 1, 3, Q("9.7 mm")),
    Sketcher.Constraint("DistanceX", -1, 1, 0, 3, Q("9.83069 mm")),
    Sketcher.Constraint("DistanceY", 2, 3, -1, 1, Q("16.948915 mm")),
])
pocket11 = doc.addObject("PartDesign::Pocket", "Pocket010")
body.addObject(pocket11)
pocket11.Profile = sketch17
pocket11.Type = "ThroughAll"

# Sketch on XZ plane
sketch18 = doc.addObject("Sketcher::SketchObject", "Sketch017")
body.addObject(sketch18)
sketch18.AttachmentSupport = (doc.XZ_Plane, [""])
sketch18.MapMode = "FlatFace"
sketch18.AttachmentOffset = App.Placement(Vector(0, 0, -4), App.Rotation())
sketch18.addGeometry(Part.Circle(Vector(19.9, 9.7, 0), Vector(0, 0, 1), 1.6), False)
sketch18.addConstraint([
    Sketcher.Constraint("Diameter", 0, Q("3.2 mm")),
    Sketcher.Constraint("DistanceX", -1, 1, 0, 3, Q("19.925091 mm")),
    Sketcher.Constraint("DistanceY", -1, 1, 0, 3, Q("9.664193 mm")),
])
pocket12 = doc.addObject("PartDesign::Pocket", "Pocket011")
body.addObject(pocket12)
pocket12.Profile = sketch18
pocket12.Type = "ThroughAll"
pocket12.Reversed = True

# Sketch on XZ plane
sketch19 = doc.addObject("Sketcher::SketchObject", "Sketch018")
body.addObject(sketch19)
sketch19.AttachmentSupport = (doc.XZ_Plane, [""])
sketch19.MapMode = "FlatFace"
sketch19.addGeometry([
    Part.LineSegment(Vector(44, 19.5, 0), Vector(44, 25.5, 0)),  # 0
    Part.LineSegment(Vector(44, 25.5, 0), Vector(24, 25.5, 0)),  # 1
    Part.LineSegment(Vector(24, 25.5, 0), Vector(24, 19.5, 0)),  # 2
    Part.ArcOfCircle(Part.Circle(Vector(26, 19.5, 0), Vector(0, 0, 1), 2), math.radians(180), math.radians(270)),  # 3
    Part.LineSegment(Vector(26, 17.5, 0), Vector(42, 17.5, 0)),  # 4
    Part.ArcOfCircle(Part.Circle(Vector(42, 19.5, 0), Vector(0, 0, 1), 2), math.radians(-90), math.radians(0)),  # 5
], False)
sketch19.addConstraint([
    Sketcher.Constraint("Coincident", 0, 2, 1, 1),
    Sketcher.Constraint("Coincident", 1, 2, 2, 1),
    Sketcher.Constraint("Tangent", 2, 2, 3, 1),
    Sketcher.Constraint("Tangent", 3, 2, 4, 1),
    Sketcher.Constraint("Tangent", 4, 2, 5, 1),
    Sketcher.Constraint("Tangent", 5, 2, 0, 1),
    Sketcher.Constraint("Vertical", 0),
    Sketcher.Constraint("Horizontal", 1),
    Sketcher.Constraint("Vertical", 2),
    Sketcher.Constraint("Horizontal", 4),
    Sketcher.Constraint("Equal", 3, 5),
    Sketcher.Constraint("Radius", 3, Q("2 mm")),
    Sketcher.Constraint("DistanceX", 1, 2, 1, 1, Q("20 mm")),
    Sketcher.Constraint("DistanceY", 0, 1, 0, 2, Q("6 mm")),
    Sketcher.Constraint("DistanceX", -1, 1, 3, 3, Q("26 mm")),
    Sketcher.Constraint("DistanceY", -1, 1, 3, 3, Q("19.5 mm")),
])
pocket13 = doc.addObject("PartDesign::Pocket", "Pocket012")
body.addObject(pocket13)
pocket13.Profile = sketch19
pocket13.Type = "ThroughAll"
doc.recompute()

fillet4 = doc.addObject("PartDesign::Fillet", "Fillet003")
body.addObject(fillet4)
fillet4.Base = (pocket13, edges_at(pocket13, [(24, 2, 25.5), (44, 2, 25.5)]))
fillet4.Radius = 1

doc.recompute()
